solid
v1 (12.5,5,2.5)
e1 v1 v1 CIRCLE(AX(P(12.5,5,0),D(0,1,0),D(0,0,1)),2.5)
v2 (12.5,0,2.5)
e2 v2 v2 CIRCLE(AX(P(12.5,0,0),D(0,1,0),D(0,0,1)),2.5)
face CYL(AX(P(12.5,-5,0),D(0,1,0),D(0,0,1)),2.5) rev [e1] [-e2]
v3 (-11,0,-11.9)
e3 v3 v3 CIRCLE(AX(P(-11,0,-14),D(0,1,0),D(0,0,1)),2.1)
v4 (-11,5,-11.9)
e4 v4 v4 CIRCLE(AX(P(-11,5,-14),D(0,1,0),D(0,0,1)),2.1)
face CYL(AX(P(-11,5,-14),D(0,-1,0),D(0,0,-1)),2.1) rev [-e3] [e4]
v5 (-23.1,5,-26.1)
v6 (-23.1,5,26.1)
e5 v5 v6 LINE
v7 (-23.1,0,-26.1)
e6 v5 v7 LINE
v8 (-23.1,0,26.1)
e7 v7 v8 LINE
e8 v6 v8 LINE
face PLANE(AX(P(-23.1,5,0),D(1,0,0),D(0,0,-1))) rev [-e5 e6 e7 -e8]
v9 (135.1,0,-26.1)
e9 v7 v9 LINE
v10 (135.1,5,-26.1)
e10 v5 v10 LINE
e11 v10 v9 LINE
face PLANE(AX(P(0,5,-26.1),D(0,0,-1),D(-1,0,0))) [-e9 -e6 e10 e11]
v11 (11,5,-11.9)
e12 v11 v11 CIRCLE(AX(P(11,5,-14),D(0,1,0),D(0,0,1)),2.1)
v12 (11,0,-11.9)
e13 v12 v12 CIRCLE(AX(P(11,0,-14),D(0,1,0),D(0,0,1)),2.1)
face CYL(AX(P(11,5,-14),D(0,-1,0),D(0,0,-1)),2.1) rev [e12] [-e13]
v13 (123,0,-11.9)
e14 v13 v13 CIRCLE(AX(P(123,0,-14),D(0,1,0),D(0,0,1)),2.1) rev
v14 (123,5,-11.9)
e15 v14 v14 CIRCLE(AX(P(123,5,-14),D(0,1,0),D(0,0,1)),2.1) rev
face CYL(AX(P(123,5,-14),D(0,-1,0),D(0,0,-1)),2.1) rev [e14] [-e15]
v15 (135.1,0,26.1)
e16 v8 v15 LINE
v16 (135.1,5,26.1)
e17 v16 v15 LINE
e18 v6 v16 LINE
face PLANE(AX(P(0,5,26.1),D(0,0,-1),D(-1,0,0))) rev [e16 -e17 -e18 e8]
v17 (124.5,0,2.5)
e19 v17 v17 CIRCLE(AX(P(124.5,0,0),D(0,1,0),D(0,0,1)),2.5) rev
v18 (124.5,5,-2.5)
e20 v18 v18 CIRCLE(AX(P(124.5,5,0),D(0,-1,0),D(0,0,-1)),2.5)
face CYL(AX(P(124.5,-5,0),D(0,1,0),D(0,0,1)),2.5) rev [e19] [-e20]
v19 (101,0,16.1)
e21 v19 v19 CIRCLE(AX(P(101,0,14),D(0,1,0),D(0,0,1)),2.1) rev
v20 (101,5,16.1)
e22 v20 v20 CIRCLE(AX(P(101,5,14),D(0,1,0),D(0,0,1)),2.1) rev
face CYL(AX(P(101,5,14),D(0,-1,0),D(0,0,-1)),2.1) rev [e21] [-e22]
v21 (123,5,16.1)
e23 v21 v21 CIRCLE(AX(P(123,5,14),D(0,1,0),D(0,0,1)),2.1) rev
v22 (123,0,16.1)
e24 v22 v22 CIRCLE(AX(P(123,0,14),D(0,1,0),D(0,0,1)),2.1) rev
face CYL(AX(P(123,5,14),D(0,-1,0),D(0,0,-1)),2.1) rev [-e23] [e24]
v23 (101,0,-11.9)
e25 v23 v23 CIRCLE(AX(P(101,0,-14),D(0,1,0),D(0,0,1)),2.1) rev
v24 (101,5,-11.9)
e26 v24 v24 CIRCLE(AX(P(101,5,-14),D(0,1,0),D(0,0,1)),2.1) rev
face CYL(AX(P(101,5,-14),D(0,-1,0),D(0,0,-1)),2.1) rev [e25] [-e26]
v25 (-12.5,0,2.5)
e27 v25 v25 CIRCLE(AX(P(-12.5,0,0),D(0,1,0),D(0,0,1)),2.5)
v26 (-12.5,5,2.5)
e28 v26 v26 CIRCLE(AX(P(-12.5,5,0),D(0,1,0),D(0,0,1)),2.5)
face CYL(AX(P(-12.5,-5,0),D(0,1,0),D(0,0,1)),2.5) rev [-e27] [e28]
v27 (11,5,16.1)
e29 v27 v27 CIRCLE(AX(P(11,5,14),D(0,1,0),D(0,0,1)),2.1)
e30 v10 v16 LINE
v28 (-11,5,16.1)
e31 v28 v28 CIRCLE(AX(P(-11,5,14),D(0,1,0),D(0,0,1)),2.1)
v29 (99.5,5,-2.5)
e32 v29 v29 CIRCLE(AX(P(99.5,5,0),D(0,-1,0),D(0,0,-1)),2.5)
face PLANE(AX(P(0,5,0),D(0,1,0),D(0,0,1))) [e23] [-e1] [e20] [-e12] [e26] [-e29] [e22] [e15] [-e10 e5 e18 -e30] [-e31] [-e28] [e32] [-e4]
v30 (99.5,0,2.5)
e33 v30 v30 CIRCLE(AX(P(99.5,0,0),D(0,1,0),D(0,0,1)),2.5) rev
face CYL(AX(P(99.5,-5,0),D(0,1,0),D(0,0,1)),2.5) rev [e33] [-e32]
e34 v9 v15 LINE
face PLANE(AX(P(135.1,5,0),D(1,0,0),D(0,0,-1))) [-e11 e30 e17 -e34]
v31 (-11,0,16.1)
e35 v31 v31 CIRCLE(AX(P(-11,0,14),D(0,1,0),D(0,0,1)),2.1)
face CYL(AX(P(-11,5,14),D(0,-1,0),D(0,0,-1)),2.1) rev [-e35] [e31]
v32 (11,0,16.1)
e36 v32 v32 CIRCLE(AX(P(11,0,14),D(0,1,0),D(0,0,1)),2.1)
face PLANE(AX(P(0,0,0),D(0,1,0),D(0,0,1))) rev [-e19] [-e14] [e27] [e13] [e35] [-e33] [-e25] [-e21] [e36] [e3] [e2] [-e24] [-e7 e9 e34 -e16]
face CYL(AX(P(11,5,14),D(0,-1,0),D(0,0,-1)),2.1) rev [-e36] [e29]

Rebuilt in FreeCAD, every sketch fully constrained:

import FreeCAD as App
import Part
import Sketcher


def add_polygon(sketch, points):
    """Adds a closed chain of lines whose ends are joined by coincident constraints."""
    first, n = sketch.GeometryCount, len(points)
    for a, b in zip(points, points[1:] + points[:1]):
        sketch.addGeometry(Part.LineSegment(App.Vector(*a, 0), App.Vector(*b, 0)), False)
    for i in range(n):
        sketch.addConstraint(Sketcher.Constraint("Coincident", first + i, 2, first + (i + 1) % n, 1))

doc = App.newDocument("Part")
body = doc.addObject("PartDesign::Body", "Body")

# Sketch on XZ plane
sketch1 = doc.addObject("Sketcher::SketchObject", "Sketch")
body.addObject(sketch1)
sketch1.AttachmentSupport = (doc.XZ_Plane, [""])
sketch1.MapMode = "FlatFace"
add_polygon(sketch1, [(-23.1, -26.1), (-23.1, 26.1), (135.1, 26.1), (135.1, -26.1)])  # lines 0-3
sketch1.addGeometry(Part.Circle(App.Vector(-11, 14, 0), App.Vector(0, 0, 1), 2.1), False)  # 4
sketch1.addGeometry(Part.Circle(App.Vector(11, 14, 0), App.Vector(0, 0, 1), 2.1), False)  # 5
sketch1.addGeometry(Part.Circle(App.Vector(101, 14, 0), App.Vector(0, 0, 1), 2.1), False)  # 6
sketch1.addGeometry(Part.Circle(App.Vector(123, 14, 0), App.Vector(0, 0, 1), 2.1), False)  # 7
sketch1.addGeometry(Part.Circle(App.Vector(-11, -14, 0), App.Vector(0, 0, 1), 2.1), False)  # 8
sketch1.addGeometry(Part.Circle(App.Vector(11, -14, 0), App.Vector(0, 0, 1), 2.1), False)  # 9
sketch1.addGeometry(Part.Circle(App.Vector(101, -14, 0), App.Vector(0, 0, 1), 2.1), False)  # 10
sketch1.addGeometry(Part.Circle(App.Vector(123, -14, 0), App.Vector(0, 0, 1), 2.1), False)  # 11
sketch1.addConstraint([
    Sketcher.Constraint("Vertical", 0),
    Sketcher.Constraint("Horizontal", 1),
    Sketcher.Constraint("Vertical", 2),
    Sketcher.Constraint("Horizontal", 3),
    Sketcher.Constraint("Equal", 4, 5),
    Sketcher.Constraint("Equal", 5, 6),
    Sketcher.Constraint("Equal", 6, 7),
    Sketcher.Constraint("Equal", 7, 8),
    Sketcher.Constraint("Equal", 8, 9),
    Sketcher.Constraint("Equal", 9, 10),
    Sketcher.Constraint("Equal", 10, 11),
    Sketcher.Constraint("Symmetric", 5, 3, 8, 3, -1, 1),
    Sketcher.Constraint("Symmetric", 4, 3, 9, 3, -1, 1),
    Sketcher.Constraint("Symmetric", 4, 3, 5, 3, -2),
    Sketcher.Constraint("Symmetric", 6, 3, 10, 3, -1),
    Sketcher.Constraint("Symmetric", 7, 3, 11, 3, -1),
    Sketcher.Constraint("Horizontal", 5, 3, 6, 3),
    Sketcher.Constraint("Horizontal", 6, 3, 7, 3),
    Sketcher.Constraint("Diameter", 4, 4.2),
    Sketcher.Constraint("DistanceX", 1, 1, 1, 2, 158.2),
    Sketcher.Constraint("DistanceY", 0, 1, 0, 2, 52.2),
    Sketcher.Constraint("DistanceX", 4, 3, -1, 1, 11.0),
    Sketcher.Constraint("DistanceY", -1, 1, 4, 3, 14.0),
    Sketcher.Constraint("DistanceX", -1, 1, 6, 3, 101.0),
    Sketcher.Constraint("DistanceX", -1, 1, 7, 3, 123.0),
    Sketcher.Constraint("DistanceX", 0, 2, -1, 1, 23.1),
    Sketcher.Constraint("DistanceY", -1, 1, 0, 2, 26.1),
])
pad1 = doc.addObject("PartDesign::Pad", "Pad")
body.addObject(pad1)
pad1.Profile = sketch1
pad1.Length = 5
pad1.Reversed = True

# Sketch on XZ plane
sketch2 = doc.addObject("Sketcher::SketchObject", "Sketch001")
body.addObject(sketch2)
sketch2.AttachmentSupport = (doc.XZ_Plane, [""])
sketch2.MapMode = "FlatFace"
sketch2.AttachmentOffset = App.Placement(App.Vector(0, 0, -5), App.Rotation())
sketch2.addGeometry([
    Part.Circle(App.Vector(12.5, 0, 0), App.Vector(0, 0, 1), 2.5),
    Part.Circle(App.Vector(-12.5, 0, 0), App.Vector(0, 0, 1), 2.5),
    Part.Circle(App.Vector(99.5, 0, 0), App.Vector(0, 0, 1), 2.5),
    Part.Circle(App.Vector(124.5, 0, 0), App.Vector(0, 0, 1), 2.5),
], False)
sketch2.addConstraint([
    Sketcher.Constraint("Equal", 0, 1),
    Sketcher.Constraint("Equal", 1, 2),
    Sketcher.Constraint("Equal", 2, 3),
    Sketcher.Constraint("Symmetric", 0, 3, 1, 3, -1, 1),
    Sketcher.Constraint("PointOnObject", 0, 3, -1),
    Sketcher.Constraint("PointOnObject", 2, 3, -1),
    Sketcher.Constraint("PointOnObject", 3, 3, -1),
    Sketcher.Constraint("Diameter", 0, 5.0),
    Sketcher.Constraint("DistanceX", 1, 3, 0, 3, 25.0),
    Sketcher.Constraint("DistanceX", 0, 3, 2, 3, 87.0),
    Sketcher.Constraint("DistanceX", 2, 3, 3, 3, 25.0),
])
pocket1 = doc.addObject("PartDesign::Pocket", "Pocket")
body.addObject(pocket1)
pocket1.Profile = sketch2
pocket1.Length = 10
pocket1.Reversed = True

doc.recompute()
